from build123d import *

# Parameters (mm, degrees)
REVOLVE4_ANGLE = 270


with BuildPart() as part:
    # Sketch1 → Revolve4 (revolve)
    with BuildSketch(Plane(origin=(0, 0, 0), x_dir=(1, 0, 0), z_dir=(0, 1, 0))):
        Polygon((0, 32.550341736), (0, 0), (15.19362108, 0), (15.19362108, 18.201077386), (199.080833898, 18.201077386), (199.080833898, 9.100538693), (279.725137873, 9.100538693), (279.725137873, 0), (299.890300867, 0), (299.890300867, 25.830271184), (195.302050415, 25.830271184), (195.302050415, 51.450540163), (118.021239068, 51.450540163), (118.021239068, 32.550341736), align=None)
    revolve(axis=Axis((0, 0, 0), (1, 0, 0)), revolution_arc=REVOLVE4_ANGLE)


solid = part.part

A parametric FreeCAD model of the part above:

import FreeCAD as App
import Part
import Sketcher


def add_polygon(sketch, points):
    """Adds a closed chain of lines whose ends are joined by coincident constraints."""
    first, n = sketch.GeometryCount, len(points)
    for a, b in zip(points, points[1:] + points[:1]):
        sketch.addGeometry(Part.LineSegment(App.Vector(*a, 0), App.Vector(*b, 0)), False)
    for i in range(n):
        sketch.addConstraint(Sketcher.Constraint("Coincident", first + i, 2, first + (i + 1) % n, 1))

doc = App.newDocument("Part")
body = doc.addObject("PartDesign::Body", "Body")

# Sketch on XZ plane
sketch1 = body.newObject("Sketcher::SketchObject", "Sketch")
sketch1.AttachmentSupport = (doc.getObject("XZ_Plane"), [""])
sketch1.MapMode = "FlatFace"
add_polygon(sketch1, [(0, -32.550342), (0, 0), (15.193621, 0), (15.193621, -18.201077), (199.080834, -18.201077), (199.080834, -9.100539), (279.725138, -9.100539), (279.725138, 0), (299.890301, 0), (299.890301, -25.830271), (195.30205, -25.830271), (195.30205, -51.45054), (118.021239, -51.45054), (118.021239, -32.550342)])  # lines 0-13
sketch1.addConstraint(Sketcher.Constraint("Vertical", 0))
sketch1.addConstraint(Sketcher.Constraint("Horizontal", 1))
sketch1.addConstraint(Sketcher.Constraint("Vertical", 2))
sketch1.addConstraint(Sketcher.Constraint("Horizontal", 3))
sketch1.addConstraint(Sketcher.Constraint("Vertical", 4))
sketch1.addConstraint(Sketcher.Constraint("Horizontal", 5))
sketch1.addConstraint(Sketcher.Constraint("Vertical", 6))
sketch1.addConstraint(Sketcher.Constraint("Horizontal", 7))
sketch1.addConstraint(Sketcher.Constraint("Vertical", 8))
sketch1.addConstraint(Sketcher.Constraint("Horizontal", 9))
sketch1.addConstraint(Sketcher.Constraint("Vertical", 10))
sketch1.addConstraint(Sketcher.Constraint("Horizontal", 11))
sketch1.addConstraint(Sketcher.Constraint("Vertical", 12))
sketch1.addConstraint(Sketcher.Constraint("Horizontal", 13))
sketch1.addConstraint(Sketcher.Constraint("Coincident", 0, 2, -1, 1))
sketch1.addConstraint(Sketcher.Constraint("PointOnObject", 6, 2, -1))
sketch1.addConstraint(Sketcher.Constraint("Equal", 4, 6))
sketch1.addConstraint(Sketcher.Constraint("DistanceY", 10, 2, 4, 2, 42.350001))
sketch1.addConstraint(Sketcher.Constraint("DistanceY", 12, 1, 12, 2, 18.900198))
sketch1.addConstraint(Sketcher.Constraint("DistanceX", 1, 1, 1, 2, 15.193621))
sketch1.addConstraint(Sketcher.Constraint("DistanceX", 9, 2, 9, 1, 104.58825))
sketch1.addConstraint(Sketcher.Constraint("DistanceX", 11, 2, 11, 1, 77.280811))
sketch1.addConstraint(Sketcher.Constraint("DistanceX", 13, 2, 13, 1, 118.021239))
sketch1.addConstraint(Sketcher.Constraint("DistanceY", 0, 1, 0, 2, 32.550342))
sketch1.addConstraint(Sketcher.Constraint("DistanceY", 8, 2, 8, 1, 25.830271))
sketch1.addConstraint(Sketcher.Constraint("DistanceX", 3, 1, 3, 2, 183.887213))
sketch1.addConstraint(Sketcher.Constraint("DistanceX", 5, 1, 5, 2, 80.644304))
revolution = body.newObject("PartDesign::Revolution", "Revolution")
revolution.Profile = sketch1
revolution.ReferenceAxis = (sketch1, ["H_Axis"])
revolution.Angle = 270

doc.recompute()
